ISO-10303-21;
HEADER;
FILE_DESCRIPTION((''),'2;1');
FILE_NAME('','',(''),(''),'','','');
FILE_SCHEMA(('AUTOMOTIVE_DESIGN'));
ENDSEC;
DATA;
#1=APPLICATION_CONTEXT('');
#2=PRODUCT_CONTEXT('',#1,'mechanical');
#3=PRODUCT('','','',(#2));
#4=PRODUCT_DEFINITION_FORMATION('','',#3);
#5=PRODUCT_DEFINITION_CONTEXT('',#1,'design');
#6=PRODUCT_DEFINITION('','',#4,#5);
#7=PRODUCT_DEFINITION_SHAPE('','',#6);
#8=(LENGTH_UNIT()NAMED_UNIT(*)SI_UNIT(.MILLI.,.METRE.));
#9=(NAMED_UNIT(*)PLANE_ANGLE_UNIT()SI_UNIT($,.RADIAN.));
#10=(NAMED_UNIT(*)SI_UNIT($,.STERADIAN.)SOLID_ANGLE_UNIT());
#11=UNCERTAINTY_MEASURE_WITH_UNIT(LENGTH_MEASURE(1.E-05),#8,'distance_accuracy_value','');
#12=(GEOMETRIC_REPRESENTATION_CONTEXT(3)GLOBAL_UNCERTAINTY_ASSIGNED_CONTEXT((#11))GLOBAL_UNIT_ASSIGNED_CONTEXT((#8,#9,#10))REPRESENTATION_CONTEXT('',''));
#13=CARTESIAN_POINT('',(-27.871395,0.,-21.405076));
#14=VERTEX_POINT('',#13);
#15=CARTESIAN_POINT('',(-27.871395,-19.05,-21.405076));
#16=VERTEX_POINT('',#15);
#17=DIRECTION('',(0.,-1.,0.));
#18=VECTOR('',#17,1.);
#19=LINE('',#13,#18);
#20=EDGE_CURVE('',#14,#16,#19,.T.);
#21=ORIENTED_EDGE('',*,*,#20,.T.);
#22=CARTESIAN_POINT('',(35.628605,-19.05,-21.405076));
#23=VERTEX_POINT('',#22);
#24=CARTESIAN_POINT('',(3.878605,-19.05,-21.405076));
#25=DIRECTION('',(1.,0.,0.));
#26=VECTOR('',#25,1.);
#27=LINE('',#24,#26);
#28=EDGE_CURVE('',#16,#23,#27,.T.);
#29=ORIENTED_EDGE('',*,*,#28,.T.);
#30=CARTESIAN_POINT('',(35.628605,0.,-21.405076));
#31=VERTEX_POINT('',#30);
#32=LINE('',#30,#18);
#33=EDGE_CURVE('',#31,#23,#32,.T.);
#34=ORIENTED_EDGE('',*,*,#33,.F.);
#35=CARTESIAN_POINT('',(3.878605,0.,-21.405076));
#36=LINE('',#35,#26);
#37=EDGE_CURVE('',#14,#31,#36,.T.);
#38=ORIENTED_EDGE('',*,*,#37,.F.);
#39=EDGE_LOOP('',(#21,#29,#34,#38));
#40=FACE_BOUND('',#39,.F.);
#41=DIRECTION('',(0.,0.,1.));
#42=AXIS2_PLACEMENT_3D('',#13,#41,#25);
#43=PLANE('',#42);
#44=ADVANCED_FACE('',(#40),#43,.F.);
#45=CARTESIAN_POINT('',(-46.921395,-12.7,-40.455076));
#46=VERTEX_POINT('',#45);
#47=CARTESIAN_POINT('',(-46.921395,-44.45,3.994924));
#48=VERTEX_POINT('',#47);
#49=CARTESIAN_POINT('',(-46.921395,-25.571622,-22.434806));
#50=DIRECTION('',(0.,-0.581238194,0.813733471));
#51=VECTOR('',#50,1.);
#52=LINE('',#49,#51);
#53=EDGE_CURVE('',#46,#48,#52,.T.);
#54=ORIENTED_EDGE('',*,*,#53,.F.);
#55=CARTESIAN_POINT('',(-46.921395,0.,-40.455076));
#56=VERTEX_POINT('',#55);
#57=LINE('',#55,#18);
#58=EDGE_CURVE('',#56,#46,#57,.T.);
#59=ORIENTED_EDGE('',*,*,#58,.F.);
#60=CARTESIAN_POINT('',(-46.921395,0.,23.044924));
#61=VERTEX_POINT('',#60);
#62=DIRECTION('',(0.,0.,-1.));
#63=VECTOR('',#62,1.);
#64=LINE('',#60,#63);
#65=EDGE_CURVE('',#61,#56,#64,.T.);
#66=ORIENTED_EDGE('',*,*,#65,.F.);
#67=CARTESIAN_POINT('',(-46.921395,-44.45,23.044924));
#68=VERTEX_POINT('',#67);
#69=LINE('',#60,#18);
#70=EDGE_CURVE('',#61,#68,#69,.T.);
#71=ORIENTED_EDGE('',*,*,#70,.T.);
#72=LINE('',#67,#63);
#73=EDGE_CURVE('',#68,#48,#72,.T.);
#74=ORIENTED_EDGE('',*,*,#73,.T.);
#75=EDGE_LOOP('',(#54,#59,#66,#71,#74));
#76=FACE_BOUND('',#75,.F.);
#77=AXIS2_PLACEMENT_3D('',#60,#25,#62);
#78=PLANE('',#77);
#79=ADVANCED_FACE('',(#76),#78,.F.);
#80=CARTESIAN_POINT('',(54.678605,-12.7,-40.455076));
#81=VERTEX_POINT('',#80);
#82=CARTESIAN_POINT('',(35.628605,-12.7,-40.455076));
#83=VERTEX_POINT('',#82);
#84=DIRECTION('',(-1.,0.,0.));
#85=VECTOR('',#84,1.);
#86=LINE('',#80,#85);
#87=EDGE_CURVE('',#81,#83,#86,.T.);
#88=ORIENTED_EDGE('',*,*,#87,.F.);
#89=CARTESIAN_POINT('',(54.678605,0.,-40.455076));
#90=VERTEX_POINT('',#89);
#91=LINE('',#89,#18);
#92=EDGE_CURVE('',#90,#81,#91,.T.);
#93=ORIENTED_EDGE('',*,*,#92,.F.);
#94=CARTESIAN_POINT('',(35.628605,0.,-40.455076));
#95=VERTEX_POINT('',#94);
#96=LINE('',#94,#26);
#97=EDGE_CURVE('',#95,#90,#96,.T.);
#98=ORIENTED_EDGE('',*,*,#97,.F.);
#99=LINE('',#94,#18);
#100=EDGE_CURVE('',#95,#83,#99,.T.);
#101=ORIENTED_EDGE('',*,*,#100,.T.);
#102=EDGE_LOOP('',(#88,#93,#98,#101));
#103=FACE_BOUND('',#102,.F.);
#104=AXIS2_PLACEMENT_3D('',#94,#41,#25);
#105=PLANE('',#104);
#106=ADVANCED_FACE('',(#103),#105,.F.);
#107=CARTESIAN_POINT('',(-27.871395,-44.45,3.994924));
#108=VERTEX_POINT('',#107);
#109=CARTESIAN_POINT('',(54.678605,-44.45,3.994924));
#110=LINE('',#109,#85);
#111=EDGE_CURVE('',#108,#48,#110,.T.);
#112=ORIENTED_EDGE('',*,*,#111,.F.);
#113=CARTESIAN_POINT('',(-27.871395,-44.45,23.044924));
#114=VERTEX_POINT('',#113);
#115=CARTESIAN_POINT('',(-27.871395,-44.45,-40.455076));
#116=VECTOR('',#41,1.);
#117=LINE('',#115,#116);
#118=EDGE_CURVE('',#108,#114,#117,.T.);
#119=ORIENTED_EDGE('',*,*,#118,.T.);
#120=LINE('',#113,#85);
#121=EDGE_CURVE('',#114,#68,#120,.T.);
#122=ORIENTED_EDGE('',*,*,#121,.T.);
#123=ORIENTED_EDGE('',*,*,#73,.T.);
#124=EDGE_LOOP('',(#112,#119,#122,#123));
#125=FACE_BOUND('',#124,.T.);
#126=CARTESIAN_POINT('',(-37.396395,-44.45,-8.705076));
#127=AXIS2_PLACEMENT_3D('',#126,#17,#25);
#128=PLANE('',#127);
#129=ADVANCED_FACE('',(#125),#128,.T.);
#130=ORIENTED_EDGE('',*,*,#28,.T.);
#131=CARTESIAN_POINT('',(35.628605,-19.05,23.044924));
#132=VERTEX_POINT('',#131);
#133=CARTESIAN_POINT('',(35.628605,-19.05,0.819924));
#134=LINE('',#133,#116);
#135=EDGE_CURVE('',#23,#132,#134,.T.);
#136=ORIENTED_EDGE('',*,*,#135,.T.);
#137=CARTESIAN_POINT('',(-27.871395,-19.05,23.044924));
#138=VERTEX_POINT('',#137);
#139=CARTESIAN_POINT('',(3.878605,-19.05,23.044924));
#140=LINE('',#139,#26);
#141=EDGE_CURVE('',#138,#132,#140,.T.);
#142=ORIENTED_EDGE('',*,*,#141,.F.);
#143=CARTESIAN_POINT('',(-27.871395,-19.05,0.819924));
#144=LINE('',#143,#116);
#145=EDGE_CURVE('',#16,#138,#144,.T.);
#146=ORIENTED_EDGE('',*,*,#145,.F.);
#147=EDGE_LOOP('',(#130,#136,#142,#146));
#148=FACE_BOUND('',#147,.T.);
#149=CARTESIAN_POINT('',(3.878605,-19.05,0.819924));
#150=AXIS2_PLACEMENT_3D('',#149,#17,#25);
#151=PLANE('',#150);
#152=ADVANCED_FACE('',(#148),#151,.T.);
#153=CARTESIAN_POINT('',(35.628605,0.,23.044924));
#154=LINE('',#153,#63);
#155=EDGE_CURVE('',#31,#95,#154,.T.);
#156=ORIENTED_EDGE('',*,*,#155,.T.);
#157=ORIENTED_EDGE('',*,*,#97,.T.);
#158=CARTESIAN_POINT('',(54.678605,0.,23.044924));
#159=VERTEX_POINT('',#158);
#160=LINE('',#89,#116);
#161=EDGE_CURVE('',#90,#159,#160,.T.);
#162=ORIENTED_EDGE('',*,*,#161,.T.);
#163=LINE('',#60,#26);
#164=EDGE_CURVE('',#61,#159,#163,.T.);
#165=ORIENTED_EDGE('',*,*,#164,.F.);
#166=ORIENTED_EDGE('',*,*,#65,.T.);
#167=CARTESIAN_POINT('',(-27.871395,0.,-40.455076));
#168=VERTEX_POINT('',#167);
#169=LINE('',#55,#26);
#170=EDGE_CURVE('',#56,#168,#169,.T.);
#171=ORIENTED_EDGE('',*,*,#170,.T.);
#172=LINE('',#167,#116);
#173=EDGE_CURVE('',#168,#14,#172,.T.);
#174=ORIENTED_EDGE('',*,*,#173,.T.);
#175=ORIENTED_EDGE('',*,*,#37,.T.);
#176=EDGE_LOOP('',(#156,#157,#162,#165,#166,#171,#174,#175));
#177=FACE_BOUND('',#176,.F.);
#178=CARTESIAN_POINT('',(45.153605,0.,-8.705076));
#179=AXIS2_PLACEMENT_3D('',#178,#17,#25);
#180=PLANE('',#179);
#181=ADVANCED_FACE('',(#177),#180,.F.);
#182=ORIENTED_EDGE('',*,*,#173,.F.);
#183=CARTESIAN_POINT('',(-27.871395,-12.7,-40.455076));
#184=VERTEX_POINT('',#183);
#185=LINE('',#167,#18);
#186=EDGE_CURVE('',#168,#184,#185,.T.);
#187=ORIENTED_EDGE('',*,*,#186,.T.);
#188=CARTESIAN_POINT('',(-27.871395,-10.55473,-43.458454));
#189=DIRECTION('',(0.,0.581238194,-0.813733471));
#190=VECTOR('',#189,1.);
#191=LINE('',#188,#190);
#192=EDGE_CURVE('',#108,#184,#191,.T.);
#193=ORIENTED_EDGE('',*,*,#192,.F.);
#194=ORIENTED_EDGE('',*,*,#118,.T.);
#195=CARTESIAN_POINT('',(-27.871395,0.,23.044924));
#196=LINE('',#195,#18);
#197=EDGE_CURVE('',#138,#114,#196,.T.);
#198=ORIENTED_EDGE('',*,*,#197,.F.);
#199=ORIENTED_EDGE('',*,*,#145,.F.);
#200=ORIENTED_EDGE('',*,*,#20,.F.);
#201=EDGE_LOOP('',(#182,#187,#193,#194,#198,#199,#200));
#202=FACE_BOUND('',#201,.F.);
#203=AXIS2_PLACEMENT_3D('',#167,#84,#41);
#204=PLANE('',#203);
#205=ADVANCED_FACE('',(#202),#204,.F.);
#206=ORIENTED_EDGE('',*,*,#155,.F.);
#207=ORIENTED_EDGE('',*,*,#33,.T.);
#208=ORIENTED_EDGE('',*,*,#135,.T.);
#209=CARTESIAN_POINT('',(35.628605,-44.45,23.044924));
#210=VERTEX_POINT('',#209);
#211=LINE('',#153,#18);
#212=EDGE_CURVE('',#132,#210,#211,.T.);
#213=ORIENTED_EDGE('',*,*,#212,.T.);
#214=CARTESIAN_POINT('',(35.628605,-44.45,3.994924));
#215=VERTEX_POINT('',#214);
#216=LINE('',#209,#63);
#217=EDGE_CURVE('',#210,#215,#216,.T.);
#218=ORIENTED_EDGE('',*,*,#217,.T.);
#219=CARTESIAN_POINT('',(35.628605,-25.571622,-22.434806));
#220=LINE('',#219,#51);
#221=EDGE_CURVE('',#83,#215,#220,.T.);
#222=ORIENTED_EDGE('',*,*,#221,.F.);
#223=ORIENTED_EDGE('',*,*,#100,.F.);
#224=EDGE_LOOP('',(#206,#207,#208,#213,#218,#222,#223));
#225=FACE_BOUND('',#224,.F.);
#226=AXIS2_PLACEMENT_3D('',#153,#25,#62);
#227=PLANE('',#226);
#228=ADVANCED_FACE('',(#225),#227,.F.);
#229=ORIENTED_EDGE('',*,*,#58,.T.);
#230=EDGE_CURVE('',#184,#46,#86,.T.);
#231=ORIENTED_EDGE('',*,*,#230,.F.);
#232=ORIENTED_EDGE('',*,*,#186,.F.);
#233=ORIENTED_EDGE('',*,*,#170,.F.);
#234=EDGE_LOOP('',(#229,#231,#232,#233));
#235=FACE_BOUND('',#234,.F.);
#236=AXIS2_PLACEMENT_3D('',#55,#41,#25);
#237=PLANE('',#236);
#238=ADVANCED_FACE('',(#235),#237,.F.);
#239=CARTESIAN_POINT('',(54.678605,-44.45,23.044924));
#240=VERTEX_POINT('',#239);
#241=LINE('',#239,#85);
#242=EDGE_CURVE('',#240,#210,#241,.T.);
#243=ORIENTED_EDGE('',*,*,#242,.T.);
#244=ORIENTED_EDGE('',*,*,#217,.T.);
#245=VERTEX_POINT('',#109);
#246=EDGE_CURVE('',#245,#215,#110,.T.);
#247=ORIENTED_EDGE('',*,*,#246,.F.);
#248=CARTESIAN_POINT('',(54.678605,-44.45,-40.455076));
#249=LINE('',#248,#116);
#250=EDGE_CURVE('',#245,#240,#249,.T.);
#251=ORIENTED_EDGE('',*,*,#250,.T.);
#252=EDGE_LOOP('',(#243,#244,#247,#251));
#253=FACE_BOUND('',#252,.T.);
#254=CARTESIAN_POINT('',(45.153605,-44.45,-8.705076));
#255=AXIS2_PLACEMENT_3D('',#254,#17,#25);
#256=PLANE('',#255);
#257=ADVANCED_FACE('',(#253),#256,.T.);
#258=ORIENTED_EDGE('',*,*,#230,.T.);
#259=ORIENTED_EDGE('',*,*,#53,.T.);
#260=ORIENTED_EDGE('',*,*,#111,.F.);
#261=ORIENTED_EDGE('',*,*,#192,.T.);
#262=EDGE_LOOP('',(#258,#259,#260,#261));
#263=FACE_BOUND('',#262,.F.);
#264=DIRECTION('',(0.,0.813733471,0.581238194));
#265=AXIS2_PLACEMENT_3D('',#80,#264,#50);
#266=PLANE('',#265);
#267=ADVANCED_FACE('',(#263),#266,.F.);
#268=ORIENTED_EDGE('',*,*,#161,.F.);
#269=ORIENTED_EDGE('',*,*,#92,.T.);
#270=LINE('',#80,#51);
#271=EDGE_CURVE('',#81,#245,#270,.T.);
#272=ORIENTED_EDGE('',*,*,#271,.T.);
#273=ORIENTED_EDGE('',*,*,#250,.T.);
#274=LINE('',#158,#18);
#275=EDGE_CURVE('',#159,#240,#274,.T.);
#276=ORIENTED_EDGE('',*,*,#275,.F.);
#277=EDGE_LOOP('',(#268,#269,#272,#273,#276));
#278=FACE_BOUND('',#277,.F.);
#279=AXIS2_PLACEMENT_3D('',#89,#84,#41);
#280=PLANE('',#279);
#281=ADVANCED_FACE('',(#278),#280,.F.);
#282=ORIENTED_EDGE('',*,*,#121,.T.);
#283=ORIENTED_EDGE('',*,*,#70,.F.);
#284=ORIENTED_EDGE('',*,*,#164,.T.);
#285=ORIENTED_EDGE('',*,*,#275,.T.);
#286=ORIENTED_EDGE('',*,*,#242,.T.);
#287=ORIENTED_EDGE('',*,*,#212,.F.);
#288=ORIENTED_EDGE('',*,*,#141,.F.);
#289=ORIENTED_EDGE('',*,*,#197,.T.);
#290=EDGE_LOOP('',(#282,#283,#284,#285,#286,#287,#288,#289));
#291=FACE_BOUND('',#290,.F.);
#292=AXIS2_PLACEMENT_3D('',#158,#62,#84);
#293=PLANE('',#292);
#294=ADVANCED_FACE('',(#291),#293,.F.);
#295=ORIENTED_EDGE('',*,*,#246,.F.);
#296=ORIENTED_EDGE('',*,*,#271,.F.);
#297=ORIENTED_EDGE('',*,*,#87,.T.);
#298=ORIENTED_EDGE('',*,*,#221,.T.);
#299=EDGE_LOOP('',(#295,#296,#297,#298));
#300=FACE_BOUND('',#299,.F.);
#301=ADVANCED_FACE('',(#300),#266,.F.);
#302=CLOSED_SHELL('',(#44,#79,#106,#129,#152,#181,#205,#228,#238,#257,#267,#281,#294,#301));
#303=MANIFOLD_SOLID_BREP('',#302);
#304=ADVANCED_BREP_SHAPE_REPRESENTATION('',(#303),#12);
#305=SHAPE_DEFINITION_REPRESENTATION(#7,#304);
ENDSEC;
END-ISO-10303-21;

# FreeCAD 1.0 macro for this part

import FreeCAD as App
import Part
import Sketcher
from FreeCAD import Vector
Q = App.Units.Quantity

doc = App.newDocument("Part")
body = doc.addObject("PartDesign::Body", "Body")

# Sketch on XZ plane
sketch1 = body.newObject("Sketcher::SketchObject", "Sketch")
sketch1.AttachmentSupport = (doc.getObject("XZ_Plane"), [""])
sketch1.MapMode = "FlatFace"
sketch1.addGeometry([
    Part.LineSegment(Vector(-28, 23, 0), Vector(-28, -21, 0)),
    Part.LineSegment(Vector(-28, -21, 0), Vector(36, -21, 0)),
    Part.LineSegment(Vector(36, -21, 0), Vector(36, 23, 0)),
    Part.LineSegment(Vector(36, 23, 0), Vector(-28, 23, 0)),
], False)
sketch1.addConstraint([
    Sketcher.Constraint("Coincident", 0, 2, 1, 1),
    Sketcher.Constraint("Coincident", 1, 2, 2, 1),
    Sketcher.Constraint("Coincident", 2, 2, 3, 1),
    Sketcher.Constraint("Coincident", 3, 2, 0, 1),
    Sketcher.Constraint("Vertical", 0),
    Sketcher.Constraint("Horizontal", 1),
    Sketcher.Constraint("Vertical", 2),
    Sketcher.Constraint("Horizontal", 3),
    Sketcher.Constraint("DistanceX", 1, 1, 1, 2, Q("2.5 in")),
    Sketcher.Constraint("DistanceY", 0, 2, 0, 1, Q("1.75 in")),
    Sketcher.Constraint("DistanceX", 0, 2, -1, 1, Q("27.871395 mm")),
    Sketcher.Constraint("DistanceY", 0, 2, -1, 1, Q("21.405076 mm")),
])
pad1 = body.newObject("PartDesign::Pad", "Pad")
pad1.Profile = sketch1
pad1.Length = Q("0.75 in")

# Sketch on XZ plane
sketch2 = body.newObject("Sketcher::SketchObject", "Sketch001")
sketch2.AttachmentSupport = (doc.getObject("XZ_Plane"), [""])
sketch2.MapMode = "FlatFace"
sketch2.addGeometry([
    Part.LineSegment(Vector(36, 23, 0), Vector(36, -40, 0)),  # 0
    Part.LineSegment(Vector(36, -40, 0), Vector(55, -40, 0)),  # 1
    Part.LineSegment(Vector(55, -40, 0), Vector(55, 23, 0)),  # 2
    Part.LineSegment(Vector(55, 23, 0), Vector(36, 23, 0)),  # 3
    Part.LineSegment(Vector(-47, 23, 0), Vector(-47, -40, 0)),  # 4
    Part.LineSegment(Vector(-47, -40, 0), Vector(-28, -40, 0)),  # 5
    Part.LineSegment(Vector(-28, -40, 0), Vector(-28, 23, 0)),  # 6
    Part.LineSegment(Vector(-28, 23, 0), Vector(-47, 23, 0)),  # 7
], False)
sketch2.addConstraint([
    Sketcher.Constraint("Coincident", 0, 2, 1, 1),
    Sketcher.Constraint("Coincident", 1, 2, 2, 1),
    Sketcher.Constraint("Coincident", 2, 2, 3, 1),
    Sketcher.Constraint("Coincident", 3, 2, 0, 1),
    Sketcher.Constraint("Coincident", 4, 2, 5, 1),
    Sketcher.Constraint("Coincident", 5, 2, 6, 1),
    Sketcher.Constraint("Coincident", 6, 2, 7, 1),
    Sketcher.Constraint("Coincident", 7, 2, 4, 1),
    Sketcher.Constraint("Vertical", 0),
    Sketcher.Constraint("Horizontal", 1),
    Sketcher.Constraint("Vertical", 2),
    Sketcher.Constraint("Horizontal", 3),
    Sketcher.Constraint("Vertical", 4),
    Sketcher.Constraint("Horizontal", 5),
    Sketcher.Constraint("Vertical", 6),
    Sketcher.Constraint("Horizontal", 7),
    Sketcher.Constraint("Horizontal", 1, 2, 4, 2),
    Sketcher.Constraint("Horizontal", 3, 2, 6, 2),
    Sketcher.Constraint("Equal", 3, 5),
    Sketcher.Constraint("DistanceY", 0, 2, 0, 1, Q("2.5 in")),
    Sketcher.Constraint("DistanceX", 4, 2, 1, 2, Q("4 in")),
    Sketcher.Constraint("DistanceX", 1, 1, 1, 2, Q("0.75 in")),
    Sketcher.Constraint("DistanceX", -1, 1, 0, 2, Q("35.628605 mm")),
    Sketcher.Constraint("DistanceY", 0, 2, -1, 1, Q("40.455076 mm")),
])
pad2 = body.newObject("PartDesign::Pad", "Pad001")
pad2.Profile = sketch2
pad2.Length = Q("1.75 in")

# Sketch on YZ plane
sketch3 = body.newObject("Sketcher::SketchObject", "Sketch002")
sketch3.AttachmentSupport = (doc.getObject("YZ_Plane"), [""])
sketch3.MapMode = "FlatFace"
sketch3.AttachmentOffset = App.Placement(Vector(0, 0, 54.678605), App.Rotation())
sketch3.addGeometry([
    Part.LineSegment(Vector(-13, -40, 0), Vector(-44, 4, 0)),
    Part.LineSegment(Vector(-44, 4, 0), Vector(-44, -40, 0)),
    Part.LineSegment(Vector(-44, -40, 0), Vector(-13, -40, 0)),
], False)
sketch3.addConstraint([
    Sketcher.Constraint("Coincident", 0, 2, 1, 1),
    Sketcher.Constraint("Coincident", 1, 2, 2, 1),
    Sketcher.Constraint("Coincident", 2, 2, 0, 1),
    Sketcher.Constraint("Vertical", 1),
    Sketcher.Constraint("Horizontal", 2),
    Sketcher.Constraint("DistanceX", 2, 1, 2, 2, Q("1.25 in")),
    Sketcher.Constraint("DistanceY", 1, 2, 1, 1, Q("1.75 in")),
    Sketcher.Constraint("DistanceX", 2, 2, -1, 1, Q("0.5 in")),
    Sketcher.Constraint("DistanceY", -1, 1, 0, 2, Q("3.994924 mm")),
])
pocket1 = body.newObject("PartDesign::Pocket", "Pocket")
pocket1.Profile = sketch3
pocket1.Type = "ThroughAll"

doc.recompute()
